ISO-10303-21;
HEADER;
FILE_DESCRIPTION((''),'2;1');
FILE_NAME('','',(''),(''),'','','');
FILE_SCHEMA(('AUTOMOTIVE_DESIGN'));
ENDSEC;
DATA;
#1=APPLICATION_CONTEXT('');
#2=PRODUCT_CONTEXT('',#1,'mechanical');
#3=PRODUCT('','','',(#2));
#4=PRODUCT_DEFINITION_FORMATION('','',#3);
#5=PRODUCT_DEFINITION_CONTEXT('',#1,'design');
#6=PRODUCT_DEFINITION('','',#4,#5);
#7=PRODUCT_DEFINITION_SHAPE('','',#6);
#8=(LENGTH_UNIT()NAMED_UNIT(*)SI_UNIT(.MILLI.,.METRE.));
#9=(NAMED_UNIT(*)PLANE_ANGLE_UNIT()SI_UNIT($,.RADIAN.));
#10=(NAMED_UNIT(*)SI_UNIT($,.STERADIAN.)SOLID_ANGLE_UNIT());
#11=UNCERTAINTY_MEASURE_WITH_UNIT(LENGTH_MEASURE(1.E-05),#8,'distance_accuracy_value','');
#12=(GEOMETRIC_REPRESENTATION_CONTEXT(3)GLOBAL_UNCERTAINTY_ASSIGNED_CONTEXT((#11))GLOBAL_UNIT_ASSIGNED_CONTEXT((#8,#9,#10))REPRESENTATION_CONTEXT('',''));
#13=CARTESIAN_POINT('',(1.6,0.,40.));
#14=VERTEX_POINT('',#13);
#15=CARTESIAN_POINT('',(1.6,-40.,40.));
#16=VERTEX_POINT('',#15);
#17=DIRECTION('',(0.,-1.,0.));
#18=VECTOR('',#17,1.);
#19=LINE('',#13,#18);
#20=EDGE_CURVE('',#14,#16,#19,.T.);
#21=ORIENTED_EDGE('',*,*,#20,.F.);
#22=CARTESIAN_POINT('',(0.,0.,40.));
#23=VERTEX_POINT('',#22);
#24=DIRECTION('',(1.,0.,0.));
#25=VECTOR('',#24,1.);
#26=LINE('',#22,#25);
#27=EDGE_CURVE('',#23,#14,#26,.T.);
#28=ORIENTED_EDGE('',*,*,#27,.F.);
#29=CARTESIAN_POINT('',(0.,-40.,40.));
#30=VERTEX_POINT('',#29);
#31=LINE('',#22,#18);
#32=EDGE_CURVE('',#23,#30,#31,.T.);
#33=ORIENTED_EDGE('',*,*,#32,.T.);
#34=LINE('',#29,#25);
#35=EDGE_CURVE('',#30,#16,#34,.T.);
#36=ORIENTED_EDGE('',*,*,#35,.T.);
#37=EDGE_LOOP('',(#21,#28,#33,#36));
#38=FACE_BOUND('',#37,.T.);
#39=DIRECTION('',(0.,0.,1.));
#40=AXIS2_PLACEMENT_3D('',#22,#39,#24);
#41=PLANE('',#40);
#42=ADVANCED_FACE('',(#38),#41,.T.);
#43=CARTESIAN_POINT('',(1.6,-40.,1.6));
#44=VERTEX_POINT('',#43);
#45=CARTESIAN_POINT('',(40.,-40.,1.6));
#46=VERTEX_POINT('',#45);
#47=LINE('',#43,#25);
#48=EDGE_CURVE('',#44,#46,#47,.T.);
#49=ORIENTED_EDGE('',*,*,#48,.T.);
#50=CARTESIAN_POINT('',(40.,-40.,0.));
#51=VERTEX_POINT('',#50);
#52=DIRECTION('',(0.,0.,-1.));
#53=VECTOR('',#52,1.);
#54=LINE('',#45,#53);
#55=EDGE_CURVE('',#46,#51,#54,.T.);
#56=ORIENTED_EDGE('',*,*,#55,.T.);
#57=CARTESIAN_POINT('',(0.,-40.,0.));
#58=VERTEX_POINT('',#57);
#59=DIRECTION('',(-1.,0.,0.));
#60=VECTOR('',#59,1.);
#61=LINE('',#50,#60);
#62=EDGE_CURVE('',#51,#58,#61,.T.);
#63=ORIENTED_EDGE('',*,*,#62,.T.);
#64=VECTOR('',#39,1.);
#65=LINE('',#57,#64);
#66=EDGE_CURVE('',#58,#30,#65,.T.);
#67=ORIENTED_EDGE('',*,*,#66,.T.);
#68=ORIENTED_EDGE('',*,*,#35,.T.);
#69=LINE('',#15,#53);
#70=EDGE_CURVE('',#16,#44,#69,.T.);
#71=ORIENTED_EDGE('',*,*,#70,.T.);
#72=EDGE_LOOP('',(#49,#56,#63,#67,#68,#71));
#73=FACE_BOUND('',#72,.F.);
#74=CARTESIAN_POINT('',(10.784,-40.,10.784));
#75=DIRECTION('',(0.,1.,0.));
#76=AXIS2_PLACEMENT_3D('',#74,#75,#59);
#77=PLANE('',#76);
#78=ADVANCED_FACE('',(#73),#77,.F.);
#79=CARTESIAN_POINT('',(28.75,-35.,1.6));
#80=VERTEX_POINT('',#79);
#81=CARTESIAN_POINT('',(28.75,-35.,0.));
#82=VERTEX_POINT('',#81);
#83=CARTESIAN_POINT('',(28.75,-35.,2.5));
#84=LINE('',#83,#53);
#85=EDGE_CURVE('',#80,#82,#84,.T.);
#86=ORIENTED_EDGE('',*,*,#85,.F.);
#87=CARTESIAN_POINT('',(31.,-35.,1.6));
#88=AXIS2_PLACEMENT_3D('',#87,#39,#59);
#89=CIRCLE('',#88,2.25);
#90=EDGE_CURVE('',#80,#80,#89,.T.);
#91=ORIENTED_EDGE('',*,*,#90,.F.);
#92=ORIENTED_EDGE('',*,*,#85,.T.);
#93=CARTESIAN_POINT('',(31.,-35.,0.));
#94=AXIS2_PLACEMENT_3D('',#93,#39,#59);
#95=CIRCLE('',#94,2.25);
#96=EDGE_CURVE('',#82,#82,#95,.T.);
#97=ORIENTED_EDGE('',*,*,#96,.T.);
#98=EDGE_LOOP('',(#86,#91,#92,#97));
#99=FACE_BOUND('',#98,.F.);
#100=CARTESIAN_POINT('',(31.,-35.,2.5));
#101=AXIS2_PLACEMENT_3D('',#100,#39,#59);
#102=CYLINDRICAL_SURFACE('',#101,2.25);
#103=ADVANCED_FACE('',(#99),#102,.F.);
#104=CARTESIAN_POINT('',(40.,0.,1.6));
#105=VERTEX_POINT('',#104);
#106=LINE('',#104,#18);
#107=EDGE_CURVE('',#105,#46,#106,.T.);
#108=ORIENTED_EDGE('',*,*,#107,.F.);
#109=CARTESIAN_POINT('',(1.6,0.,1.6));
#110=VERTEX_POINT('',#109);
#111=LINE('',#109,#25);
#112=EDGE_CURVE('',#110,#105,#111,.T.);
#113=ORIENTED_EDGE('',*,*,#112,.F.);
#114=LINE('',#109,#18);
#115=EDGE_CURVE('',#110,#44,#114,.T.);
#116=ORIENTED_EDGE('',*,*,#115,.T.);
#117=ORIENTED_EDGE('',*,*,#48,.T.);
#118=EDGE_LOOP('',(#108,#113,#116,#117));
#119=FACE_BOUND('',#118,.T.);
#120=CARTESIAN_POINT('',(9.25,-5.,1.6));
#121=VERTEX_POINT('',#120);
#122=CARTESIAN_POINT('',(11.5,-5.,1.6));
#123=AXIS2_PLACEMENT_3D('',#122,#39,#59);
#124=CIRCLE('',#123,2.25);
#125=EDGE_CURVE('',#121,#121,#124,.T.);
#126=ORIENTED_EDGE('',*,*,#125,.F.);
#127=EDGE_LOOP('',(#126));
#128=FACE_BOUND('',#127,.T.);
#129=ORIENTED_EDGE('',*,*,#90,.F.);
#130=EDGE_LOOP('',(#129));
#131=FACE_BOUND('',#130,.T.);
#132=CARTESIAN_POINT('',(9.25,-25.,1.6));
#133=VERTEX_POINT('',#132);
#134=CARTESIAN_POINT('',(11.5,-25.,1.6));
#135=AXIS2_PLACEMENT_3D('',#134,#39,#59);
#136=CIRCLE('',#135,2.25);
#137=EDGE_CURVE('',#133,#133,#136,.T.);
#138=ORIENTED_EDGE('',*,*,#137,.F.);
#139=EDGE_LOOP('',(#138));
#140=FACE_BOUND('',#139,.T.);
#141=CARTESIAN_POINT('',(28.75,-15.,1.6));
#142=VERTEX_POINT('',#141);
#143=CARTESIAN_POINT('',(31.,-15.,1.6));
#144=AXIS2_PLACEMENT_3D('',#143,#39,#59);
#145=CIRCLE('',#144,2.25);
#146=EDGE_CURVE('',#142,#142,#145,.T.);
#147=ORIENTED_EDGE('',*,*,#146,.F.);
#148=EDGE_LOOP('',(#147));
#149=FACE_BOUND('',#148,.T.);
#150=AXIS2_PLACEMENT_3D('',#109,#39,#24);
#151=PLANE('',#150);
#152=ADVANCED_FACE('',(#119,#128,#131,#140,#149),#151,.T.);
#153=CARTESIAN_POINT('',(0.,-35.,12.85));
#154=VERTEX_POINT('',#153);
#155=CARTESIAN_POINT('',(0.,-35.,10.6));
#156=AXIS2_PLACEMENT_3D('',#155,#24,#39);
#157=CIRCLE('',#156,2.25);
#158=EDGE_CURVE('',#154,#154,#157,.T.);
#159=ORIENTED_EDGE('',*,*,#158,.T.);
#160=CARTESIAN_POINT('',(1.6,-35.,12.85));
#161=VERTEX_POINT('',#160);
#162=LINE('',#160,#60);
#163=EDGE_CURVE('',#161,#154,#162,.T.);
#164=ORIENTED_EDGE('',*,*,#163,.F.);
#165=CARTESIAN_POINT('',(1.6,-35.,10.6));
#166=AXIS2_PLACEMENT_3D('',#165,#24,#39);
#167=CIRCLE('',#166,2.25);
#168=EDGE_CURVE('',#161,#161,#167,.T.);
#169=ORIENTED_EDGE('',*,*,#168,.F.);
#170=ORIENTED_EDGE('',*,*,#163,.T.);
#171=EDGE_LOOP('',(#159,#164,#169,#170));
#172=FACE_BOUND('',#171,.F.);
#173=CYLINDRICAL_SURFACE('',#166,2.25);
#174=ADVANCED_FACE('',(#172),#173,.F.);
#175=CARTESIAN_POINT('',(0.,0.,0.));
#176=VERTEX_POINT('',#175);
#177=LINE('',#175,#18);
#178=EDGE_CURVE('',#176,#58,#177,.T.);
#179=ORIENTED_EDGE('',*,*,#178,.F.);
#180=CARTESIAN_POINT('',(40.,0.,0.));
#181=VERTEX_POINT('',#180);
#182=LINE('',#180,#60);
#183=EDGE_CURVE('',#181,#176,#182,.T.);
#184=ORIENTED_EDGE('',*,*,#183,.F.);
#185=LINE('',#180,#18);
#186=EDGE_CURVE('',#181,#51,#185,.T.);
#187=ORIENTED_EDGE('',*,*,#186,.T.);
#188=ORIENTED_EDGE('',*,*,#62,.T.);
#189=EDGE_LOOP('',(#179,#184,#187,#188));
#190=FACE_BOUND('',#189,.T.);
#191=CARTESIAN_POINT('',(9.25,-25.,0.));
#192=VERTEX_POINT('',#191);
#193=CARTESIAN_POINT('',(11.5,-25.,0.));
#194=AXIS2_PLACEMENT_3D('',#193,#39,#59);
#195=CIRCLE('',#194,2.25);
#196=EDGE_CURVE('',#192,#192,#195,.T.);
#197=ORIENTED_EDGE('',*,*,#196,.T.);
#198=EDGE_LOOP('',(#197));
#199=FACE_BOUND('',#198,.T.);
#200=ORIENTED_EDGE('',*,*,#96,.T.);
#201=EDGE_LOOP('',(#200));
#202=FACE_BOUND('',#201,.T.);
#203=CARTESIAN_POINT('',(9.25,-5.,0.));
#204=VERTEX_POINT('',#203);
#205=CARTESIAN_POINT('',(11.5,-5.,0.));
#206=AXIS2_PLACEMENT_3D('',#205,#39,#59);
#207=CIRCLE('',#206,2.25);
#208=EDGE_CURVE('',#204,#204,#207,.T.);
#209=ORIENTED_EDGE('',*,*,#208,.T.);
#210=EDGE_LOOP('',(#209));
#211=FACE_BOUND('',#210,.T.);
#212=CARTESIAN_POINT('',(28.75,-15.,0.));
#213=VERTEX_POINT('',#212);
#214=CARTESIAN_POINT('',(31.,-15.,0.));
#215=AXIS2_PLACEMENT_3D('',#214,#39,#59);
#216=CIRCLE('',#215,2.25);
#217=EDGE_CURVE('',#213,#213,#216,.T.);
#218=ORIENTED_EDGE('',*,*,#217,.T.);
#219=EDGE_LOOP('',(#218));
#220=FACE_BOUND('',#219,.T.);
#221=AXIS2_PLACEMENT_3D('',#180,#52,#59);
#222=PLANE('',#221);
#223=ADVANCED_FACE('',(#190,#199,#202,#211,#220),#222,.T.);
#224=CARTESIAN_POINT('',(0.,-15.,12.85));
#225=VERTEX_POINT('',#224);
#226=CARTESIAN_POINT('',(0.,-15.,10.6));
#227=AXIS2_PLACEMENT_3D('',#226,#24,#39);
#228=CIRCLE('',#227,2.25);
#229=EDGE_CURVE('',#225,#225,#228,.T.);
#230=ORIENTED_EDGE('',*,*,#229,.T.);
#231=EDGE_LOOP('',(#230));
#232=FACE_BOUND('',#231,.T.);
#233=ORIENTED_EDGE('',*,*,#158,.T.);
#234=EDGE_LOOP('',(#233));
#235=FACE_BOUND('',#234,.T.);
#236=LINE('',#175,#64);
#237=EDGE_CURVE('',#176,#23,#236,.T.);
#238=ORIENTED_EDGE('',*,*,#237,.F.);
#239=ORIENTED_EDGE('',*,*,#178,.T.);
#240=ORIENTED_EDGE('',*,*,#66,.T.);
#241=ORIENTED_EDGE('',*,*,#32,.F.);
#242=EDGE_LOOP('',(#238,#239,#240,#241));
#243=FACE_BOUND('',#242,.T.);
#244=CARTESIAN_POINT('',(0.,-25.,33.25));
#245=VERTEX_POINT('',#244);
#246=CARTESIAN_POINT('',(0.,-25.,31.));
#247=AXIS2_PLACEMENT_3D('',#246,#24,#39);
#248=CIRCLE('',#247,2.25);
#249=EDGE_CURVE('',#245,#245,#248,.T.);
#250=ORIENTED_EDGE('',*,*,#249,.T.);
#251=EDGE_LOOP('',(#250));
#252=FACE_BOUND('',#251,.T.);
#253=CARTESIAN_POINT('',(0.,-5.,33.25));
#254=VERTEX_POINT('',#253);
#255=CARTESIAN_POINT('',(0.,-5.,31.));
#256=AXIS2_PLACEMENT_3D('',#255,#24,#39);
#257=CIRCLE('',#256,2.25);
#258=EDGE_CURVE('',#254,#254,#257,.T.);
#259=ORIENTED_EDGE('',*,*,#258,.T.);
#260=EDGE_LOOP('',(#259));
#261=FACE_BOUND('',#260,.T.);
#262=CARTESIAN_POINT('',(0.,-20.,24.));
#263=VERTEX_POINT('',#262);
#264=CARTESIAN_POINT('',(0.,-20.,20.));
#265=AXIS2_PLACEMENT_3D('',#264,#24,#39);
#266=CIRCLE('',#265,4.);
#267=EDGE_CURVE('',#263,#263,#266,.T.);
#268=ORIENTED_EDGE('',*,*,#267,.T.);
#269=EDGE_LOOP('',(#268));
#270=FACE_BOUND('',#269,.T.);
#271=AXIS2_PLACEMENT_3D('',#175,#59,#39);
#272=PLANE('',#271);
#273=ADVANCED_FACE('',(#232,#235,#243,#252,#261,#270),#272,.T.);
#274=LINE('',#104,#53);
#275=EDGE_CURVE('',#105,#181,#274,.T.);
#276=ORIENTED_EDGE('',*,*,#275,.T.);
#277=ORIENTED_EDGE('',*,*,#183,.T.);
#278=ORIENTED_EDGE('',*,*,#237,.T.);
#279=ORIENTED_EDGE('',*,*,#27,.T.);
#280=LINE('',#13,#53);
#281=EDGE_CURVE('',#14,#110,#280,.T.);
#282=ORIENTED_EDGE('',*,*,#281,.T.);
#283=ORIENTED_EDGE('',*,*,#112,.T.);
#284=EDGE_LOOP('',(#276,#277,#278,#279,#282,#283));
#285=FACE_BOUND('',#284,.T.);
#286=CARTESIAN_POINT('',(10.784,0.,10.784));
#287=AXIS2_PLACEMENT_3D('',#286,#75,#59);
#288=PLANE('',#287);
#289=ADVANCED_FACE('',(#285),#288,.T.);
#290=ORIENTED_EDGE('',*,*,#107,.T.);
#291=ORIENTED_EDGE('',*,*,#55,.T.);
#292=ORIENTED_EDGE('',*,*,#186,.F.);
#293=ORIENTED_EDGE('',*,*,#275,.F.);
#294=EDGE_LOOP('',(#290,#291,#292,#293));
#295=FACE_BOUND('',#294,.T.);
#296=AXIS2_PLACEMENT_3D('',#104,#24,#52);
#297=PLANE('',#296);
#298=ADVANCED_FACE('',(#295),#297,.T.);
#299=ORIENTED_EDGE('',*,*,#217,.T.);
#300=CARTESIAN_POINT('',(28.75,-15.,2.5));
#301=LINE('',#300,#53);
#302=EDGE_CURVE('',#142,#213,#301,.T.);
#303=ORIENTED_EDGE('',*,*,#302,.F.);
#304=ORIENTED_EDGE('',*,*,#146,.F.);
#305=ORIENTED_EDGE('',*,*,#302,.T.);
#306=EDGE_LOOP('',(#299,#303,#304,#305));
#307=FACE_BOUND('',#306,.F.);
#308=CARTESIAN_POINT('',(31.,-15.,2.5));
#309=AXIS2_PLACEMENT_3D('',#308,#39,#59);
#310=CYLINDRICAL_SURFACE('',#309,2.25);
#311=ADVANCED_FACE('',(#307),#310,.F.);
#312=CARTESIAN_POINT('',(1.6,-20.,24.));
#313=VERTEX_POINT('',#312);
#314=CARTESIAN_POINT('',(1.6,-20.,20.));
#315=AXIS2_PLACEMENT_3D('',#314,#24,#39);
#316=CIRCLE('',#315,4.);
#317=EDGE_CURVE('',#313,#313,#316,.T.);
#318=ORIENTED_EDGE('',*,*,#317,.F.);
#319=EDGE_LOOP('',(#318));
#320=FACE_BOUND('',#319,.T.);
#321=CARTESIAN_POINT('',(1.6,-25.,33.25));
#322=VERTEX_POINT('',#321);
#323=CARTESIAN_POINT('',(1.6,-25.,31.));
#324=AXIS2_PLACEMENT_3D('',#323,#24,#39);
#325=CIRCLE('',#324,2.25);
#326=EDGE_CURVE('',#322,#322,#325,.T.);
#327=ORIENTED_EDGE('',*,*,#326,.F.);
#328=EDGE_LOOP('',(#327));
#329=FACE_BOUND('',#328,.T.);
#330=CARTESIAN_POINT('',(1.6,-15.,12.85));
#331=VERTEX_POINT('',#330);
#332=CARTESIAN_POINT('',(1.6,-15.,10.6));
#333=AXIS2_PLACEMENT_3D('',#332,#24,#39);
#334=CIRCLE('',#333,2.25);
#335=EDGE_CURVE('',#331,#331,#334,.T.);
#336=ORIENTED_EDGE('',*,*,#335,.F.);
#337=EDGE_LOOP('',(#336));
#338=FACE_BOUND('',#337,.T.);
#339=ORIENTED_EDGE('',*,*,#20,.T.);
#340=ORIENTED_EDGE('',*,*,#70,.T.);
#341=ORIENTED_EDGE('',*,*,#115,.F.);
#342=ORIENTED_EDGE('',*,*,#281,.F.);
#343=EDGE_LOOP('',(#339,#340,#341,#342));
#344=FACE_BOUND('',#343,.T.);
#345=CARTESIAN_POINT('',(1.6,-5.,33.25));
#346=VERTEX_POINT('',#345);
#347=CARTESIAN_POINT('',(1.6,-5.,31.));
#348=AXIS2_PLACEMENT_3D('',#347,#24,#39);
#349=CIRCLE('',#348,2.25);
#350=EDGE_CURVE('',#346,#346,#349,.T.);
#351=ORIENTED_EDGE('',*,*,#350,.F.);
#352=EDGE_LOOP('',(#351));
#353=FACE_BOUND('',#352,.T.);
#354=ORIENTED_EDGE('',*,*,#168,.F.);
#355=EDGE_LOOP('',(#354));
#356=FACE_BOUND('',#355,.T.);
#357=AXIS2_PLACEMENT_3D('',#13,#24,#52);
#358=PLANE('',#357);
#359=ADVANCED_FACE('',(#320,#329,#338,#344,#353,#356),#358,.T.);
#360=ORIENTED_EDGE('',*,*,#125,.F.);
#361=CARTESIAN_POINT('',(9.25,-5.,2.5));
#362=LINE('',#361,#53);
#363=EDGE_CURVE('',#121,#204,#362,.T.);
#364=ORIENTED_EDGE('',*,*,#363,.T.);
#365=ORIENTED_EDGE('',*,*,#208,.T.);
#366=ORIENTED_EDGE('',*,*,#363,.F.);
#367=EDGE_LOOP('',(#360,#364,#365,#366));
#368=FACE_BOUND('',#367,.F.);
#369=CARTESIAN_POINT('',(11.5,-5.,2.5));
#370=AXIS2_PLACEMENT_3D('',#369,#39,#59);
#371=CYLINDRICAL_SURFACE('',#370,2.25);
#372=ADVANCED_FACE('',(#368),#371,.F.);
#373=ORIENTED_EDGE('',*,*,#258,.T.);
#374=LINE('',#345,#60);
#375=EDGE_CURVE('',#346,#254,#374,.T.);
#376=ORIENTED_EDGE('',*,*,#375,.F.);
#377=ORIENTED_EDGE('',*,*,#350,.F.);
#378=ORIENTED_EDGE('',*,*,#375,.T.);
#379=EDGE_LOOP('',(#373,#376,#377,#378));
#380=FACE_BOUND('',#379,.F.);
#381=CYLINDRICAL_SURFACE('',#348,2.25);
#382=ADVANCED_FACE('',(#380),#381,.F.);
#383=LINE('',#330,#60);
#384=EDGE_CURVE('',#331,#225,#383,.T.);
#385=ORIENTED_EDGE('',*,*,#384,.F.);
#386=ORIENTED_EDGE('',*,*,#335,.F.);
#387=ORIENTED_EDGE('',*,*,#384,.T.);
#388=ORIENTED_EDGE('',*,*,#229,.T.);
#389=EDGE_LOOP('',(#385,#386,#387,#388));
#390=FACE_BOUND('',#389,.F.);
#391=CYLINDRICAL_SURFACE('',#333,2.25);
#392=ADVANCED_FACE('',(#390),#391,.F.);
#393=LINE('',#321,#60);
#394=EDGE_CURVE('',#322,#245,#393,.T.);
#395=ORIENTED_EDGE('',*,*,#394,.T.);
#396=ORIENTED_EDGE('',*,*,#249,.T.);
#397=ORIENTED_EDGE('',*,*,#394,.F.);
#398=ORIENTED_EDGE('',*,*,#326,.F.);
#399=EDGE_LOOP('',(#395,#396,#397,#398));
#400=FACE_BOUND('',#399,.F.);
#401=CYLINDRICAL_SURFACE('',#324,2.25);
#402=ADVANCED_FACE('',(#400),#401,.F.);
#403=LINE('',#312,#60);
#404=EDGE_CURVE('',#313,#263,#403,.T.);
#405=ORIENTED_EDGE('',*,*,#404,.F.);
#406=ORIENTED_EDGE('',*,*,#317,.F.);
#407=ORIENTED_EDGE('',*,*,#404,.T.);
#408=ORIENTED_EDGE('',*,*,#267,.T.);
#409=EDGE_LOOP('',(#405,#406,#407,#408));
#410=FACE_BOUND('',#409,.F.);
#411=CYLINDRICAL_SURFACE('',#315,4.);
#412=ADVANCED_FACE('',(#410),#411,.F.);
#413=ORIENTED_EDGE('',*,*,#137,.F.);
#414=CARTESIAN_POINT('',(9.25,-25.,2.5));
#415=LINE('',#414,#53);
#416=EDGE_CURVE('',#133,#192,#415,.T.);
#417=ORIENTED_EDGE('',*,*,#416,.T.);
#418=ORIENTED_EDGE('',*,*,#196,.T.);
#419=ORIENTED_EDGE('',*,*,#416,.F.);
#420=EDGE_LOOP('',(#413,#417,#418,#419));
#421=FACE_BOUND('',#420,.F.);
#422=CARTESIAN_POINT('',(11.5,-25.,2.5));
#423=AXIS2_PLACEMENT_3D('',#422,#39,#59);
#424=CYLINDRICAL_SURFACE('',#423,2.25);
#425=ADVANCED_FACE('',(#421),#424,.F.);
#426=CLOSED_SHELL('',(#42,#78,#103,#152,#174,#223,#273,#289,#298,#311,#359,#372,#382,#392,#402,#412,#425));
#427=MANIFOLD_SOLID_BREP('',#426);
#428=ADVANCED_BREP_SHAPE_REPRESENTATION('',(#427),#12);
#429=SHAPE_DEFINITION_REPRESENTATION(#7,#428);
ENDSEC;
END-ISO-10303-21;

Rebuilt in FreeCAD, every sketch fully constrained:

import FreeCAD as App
import Part
import Sketcher
from FreeCAD import Vector
Q = App.Units.Quantity


def add_polygon(sketch, points):
    """Adds a closed chain of lines whose ends are joined by coincident constraints."""
    first, n = sketch.GeometryCount, len(points)
    for a, b in zip(points, points[1:] + points[:1]):
        sketch.addGeometry(Part.LineSegment(App.Vector(*a, 0), App.Vector(*b, 0)), False)
    for i in range(n):
        sketch.addConstraint(Sketcher.Constraint("Coincident", first + i, 2, first + (i + 1) % n, 1))

doc = App.newDocument("Part")
body = doc.addObject("PartDesign::Body", "Body")

# Sketch on XZ plane
sketch1 = doc.addObject("Sketcher::SketchObject", "Sketch")
body.addObject(sketch1)
sketch1.AttachmentSupport = (doc.XZ_Plane, [""])
sketch1.MapMode = "FlatFace"
add_polygon(sketch1, [(0, 40), (0, 0), (40, 0), (40, 1.6), (1.6, 1.6), (1.6, 40)])  # lines 0-5
sketch1.addConstraint([
    Sketcher.Constraint("Vertical", 0),
    Sketcher.Constraint("Horizontal", 1),
    Sketcher.Constraint("Vertical", 2),
    Sketcher.Constraint("Horizontal", 3),
    Sketcher.Constraint("Vertical", 4),
    Sketcher.Constraint("Horizontal", 5),
    Sketcher.Constraint("Coincident", 0, 2, -1, 1),
    Sketcher.Constraint("Equal", 1, 0),
    Sketcher.Constraint("Equal", 5, 2),
    Sketcher.Constraint("DistanceX", 1, 1, 1, 2, Q("40 mm")),
    Sketcher.Constraint("DistanceX", 3, 2, 3, 1, Q("38.4 mm")),
])
pad1 = doc.addObject("PartDesign::Pad", "Pad")
body.addObject(pad1)
pad1.Profile = sketch1
pad1.Length = 40

# Sketch on YZ plane
sketch2 = doc.addObject("Sketcher::SketchObject", "Sketch001")
body.addObject(sketch2)
sketch2.AttachmentSupport = (doc.YZ_Plane, [""])
sketch2.MapMode = "FlatFace"
sketch2.AttachmentOffset = App.Placement(Vector(0, 0, 1.6), App.Rotation())
sketch2.addGeometry([
    Part.Circle(Vector(-35, 10.6, 0), Vector(0, 0, 1), 2.2),  # 0
    Part.Circle(Vector(-25, 31, 0), Vector(0, 0, 1), 2.2),  # 1
    Part.Circle(Vector(-15, 10.6, 0), Vector(0, 0, 1), 2.2),  # 2
    Part.Circle(Vector(-5, 31, 0), Vector(0, 0, 1), 2.2),  # 3
    Part.Circle(Vector(-20, 20, 0), Vector(0, 0, 1), 4),  # 4
], False)
sketch2.addConstraint([
    Sketcher.Constraint("Equal", 0, 1),
    Sketcher.Constraint("Equal", 1, 2),
    Sketcher.Constraint("Equal", 2, 3),
    Sketcher.Constraint("Horizontal", 0, 3, 2, 3),
    Sketcher.Constraint("Horizontal", 1, 3, 3, 3),
    Sketcher.Constraint("Diameter", 4, Q("8 mm")),
    Sketcher.Constraint("Diameter", 0, Q("4.5 mm")),
    Sketcher.Constraint("DistanceX", 0, 3, -1, 1, Q("35 mm")),
    Sketcher.Constraint("DistanceX", 1, 3, -1, 1, Q("25 mm")),
    Sketcher.Constraint("DistanceY", -1, 1, 1, 3, Q("31 mm")),
    Sketcher.Constraint("DistanceX", 2, 3, -1, 1, Q("15 mm")),
    Sketcher.Constraint("DistanceX", 3, 3, -1, 1, Q("5 mm")),
    Sketcher.Constraint("DistanceX", 4, 3, -1, 1, Q("20 mm")),
    Sketcher.Constraint("DistanceY", -1, 1, 4, 3, Q("20 mm")),
    Sketcher.Constraint("DistanceY", -1, 1, 0, 3, Q("10.6 mm")),
])
pocket1 = doc.addObject("PartDesign::Pocket", "Pocket")
body.addObject(pocket1)
pocket1.Profile = sketch2
pocket1.Type = "ThroughAll"

# Sketch on XY plane
sketch3 = doc.addObject("Sketcher::SketchObject", "Sketch002")
body.addObject(sketch3)
sketch3.AttachmentSupport = (doc.XY_Plane, [""])
sketch3.MapMode = "FlatFace"
sketch3.AttachmentOffset = App.Placement(Vector(0, 0, 2.5), App.Rotation())
sketch3.addGeometry([
    Part.Circle(Vector(11.5, -5, 0), Vector(0, 0, 1), 2.2),
    Part.Circle(Vector(31, -15, 0), Vector(0, 0, 1), 2.2),
    Part.Circle(Vector(11.5, -25, 0), Vector(0, 0, 1), 2.2),
    Part.Circle(Vector(31, -35, 0), Vector(0, 0, 1), 2.2),
], False)
sketch3.addConstraint([
    Sketcher.Constraint("Equal", 0, 1),
    Sketcher.Constraint("Equal", 1, 2),
    Sketcher.Constraint("Equal", 2, 3),
    Sketcher.Constraint("Vertical", 0, 3, 2, 3),
    Sketcher.Constraint("Vertical", 1, 3, 3, 3),
    Sketcher.Constraint("Diameter", 0, Q("4.5 mm")),
    Sketcher.Constraint("DistanceY", 0, 3, -1, 1, Q("5 mm")),
    Sketcher.Constraint("DistanceX", -1, 1, 1, 3, Q("31 mm")),
    Sketcher.Constraint("DistanceY", 1, 3, -1, 1, Q("15 mm")),
    Sketcher.Constraint("DistanceY", 2, 3, -1, 1, Q("25 mm")),
    Sketcher.Constraint("DistanceY", 3, 3, -1, 1, Q("35 mm")),
    Sketcher.Constraint("DistanceX", -1, 1, 0, 3, Q("11.5 mm")),
])
pocket2 = doc.addObject("PartDesign::Pocket", "Pocket001")
body.addObject(pocket2)
pocket2.Profile = sketch3
pocket2.Length = 5

doc.recompute()
